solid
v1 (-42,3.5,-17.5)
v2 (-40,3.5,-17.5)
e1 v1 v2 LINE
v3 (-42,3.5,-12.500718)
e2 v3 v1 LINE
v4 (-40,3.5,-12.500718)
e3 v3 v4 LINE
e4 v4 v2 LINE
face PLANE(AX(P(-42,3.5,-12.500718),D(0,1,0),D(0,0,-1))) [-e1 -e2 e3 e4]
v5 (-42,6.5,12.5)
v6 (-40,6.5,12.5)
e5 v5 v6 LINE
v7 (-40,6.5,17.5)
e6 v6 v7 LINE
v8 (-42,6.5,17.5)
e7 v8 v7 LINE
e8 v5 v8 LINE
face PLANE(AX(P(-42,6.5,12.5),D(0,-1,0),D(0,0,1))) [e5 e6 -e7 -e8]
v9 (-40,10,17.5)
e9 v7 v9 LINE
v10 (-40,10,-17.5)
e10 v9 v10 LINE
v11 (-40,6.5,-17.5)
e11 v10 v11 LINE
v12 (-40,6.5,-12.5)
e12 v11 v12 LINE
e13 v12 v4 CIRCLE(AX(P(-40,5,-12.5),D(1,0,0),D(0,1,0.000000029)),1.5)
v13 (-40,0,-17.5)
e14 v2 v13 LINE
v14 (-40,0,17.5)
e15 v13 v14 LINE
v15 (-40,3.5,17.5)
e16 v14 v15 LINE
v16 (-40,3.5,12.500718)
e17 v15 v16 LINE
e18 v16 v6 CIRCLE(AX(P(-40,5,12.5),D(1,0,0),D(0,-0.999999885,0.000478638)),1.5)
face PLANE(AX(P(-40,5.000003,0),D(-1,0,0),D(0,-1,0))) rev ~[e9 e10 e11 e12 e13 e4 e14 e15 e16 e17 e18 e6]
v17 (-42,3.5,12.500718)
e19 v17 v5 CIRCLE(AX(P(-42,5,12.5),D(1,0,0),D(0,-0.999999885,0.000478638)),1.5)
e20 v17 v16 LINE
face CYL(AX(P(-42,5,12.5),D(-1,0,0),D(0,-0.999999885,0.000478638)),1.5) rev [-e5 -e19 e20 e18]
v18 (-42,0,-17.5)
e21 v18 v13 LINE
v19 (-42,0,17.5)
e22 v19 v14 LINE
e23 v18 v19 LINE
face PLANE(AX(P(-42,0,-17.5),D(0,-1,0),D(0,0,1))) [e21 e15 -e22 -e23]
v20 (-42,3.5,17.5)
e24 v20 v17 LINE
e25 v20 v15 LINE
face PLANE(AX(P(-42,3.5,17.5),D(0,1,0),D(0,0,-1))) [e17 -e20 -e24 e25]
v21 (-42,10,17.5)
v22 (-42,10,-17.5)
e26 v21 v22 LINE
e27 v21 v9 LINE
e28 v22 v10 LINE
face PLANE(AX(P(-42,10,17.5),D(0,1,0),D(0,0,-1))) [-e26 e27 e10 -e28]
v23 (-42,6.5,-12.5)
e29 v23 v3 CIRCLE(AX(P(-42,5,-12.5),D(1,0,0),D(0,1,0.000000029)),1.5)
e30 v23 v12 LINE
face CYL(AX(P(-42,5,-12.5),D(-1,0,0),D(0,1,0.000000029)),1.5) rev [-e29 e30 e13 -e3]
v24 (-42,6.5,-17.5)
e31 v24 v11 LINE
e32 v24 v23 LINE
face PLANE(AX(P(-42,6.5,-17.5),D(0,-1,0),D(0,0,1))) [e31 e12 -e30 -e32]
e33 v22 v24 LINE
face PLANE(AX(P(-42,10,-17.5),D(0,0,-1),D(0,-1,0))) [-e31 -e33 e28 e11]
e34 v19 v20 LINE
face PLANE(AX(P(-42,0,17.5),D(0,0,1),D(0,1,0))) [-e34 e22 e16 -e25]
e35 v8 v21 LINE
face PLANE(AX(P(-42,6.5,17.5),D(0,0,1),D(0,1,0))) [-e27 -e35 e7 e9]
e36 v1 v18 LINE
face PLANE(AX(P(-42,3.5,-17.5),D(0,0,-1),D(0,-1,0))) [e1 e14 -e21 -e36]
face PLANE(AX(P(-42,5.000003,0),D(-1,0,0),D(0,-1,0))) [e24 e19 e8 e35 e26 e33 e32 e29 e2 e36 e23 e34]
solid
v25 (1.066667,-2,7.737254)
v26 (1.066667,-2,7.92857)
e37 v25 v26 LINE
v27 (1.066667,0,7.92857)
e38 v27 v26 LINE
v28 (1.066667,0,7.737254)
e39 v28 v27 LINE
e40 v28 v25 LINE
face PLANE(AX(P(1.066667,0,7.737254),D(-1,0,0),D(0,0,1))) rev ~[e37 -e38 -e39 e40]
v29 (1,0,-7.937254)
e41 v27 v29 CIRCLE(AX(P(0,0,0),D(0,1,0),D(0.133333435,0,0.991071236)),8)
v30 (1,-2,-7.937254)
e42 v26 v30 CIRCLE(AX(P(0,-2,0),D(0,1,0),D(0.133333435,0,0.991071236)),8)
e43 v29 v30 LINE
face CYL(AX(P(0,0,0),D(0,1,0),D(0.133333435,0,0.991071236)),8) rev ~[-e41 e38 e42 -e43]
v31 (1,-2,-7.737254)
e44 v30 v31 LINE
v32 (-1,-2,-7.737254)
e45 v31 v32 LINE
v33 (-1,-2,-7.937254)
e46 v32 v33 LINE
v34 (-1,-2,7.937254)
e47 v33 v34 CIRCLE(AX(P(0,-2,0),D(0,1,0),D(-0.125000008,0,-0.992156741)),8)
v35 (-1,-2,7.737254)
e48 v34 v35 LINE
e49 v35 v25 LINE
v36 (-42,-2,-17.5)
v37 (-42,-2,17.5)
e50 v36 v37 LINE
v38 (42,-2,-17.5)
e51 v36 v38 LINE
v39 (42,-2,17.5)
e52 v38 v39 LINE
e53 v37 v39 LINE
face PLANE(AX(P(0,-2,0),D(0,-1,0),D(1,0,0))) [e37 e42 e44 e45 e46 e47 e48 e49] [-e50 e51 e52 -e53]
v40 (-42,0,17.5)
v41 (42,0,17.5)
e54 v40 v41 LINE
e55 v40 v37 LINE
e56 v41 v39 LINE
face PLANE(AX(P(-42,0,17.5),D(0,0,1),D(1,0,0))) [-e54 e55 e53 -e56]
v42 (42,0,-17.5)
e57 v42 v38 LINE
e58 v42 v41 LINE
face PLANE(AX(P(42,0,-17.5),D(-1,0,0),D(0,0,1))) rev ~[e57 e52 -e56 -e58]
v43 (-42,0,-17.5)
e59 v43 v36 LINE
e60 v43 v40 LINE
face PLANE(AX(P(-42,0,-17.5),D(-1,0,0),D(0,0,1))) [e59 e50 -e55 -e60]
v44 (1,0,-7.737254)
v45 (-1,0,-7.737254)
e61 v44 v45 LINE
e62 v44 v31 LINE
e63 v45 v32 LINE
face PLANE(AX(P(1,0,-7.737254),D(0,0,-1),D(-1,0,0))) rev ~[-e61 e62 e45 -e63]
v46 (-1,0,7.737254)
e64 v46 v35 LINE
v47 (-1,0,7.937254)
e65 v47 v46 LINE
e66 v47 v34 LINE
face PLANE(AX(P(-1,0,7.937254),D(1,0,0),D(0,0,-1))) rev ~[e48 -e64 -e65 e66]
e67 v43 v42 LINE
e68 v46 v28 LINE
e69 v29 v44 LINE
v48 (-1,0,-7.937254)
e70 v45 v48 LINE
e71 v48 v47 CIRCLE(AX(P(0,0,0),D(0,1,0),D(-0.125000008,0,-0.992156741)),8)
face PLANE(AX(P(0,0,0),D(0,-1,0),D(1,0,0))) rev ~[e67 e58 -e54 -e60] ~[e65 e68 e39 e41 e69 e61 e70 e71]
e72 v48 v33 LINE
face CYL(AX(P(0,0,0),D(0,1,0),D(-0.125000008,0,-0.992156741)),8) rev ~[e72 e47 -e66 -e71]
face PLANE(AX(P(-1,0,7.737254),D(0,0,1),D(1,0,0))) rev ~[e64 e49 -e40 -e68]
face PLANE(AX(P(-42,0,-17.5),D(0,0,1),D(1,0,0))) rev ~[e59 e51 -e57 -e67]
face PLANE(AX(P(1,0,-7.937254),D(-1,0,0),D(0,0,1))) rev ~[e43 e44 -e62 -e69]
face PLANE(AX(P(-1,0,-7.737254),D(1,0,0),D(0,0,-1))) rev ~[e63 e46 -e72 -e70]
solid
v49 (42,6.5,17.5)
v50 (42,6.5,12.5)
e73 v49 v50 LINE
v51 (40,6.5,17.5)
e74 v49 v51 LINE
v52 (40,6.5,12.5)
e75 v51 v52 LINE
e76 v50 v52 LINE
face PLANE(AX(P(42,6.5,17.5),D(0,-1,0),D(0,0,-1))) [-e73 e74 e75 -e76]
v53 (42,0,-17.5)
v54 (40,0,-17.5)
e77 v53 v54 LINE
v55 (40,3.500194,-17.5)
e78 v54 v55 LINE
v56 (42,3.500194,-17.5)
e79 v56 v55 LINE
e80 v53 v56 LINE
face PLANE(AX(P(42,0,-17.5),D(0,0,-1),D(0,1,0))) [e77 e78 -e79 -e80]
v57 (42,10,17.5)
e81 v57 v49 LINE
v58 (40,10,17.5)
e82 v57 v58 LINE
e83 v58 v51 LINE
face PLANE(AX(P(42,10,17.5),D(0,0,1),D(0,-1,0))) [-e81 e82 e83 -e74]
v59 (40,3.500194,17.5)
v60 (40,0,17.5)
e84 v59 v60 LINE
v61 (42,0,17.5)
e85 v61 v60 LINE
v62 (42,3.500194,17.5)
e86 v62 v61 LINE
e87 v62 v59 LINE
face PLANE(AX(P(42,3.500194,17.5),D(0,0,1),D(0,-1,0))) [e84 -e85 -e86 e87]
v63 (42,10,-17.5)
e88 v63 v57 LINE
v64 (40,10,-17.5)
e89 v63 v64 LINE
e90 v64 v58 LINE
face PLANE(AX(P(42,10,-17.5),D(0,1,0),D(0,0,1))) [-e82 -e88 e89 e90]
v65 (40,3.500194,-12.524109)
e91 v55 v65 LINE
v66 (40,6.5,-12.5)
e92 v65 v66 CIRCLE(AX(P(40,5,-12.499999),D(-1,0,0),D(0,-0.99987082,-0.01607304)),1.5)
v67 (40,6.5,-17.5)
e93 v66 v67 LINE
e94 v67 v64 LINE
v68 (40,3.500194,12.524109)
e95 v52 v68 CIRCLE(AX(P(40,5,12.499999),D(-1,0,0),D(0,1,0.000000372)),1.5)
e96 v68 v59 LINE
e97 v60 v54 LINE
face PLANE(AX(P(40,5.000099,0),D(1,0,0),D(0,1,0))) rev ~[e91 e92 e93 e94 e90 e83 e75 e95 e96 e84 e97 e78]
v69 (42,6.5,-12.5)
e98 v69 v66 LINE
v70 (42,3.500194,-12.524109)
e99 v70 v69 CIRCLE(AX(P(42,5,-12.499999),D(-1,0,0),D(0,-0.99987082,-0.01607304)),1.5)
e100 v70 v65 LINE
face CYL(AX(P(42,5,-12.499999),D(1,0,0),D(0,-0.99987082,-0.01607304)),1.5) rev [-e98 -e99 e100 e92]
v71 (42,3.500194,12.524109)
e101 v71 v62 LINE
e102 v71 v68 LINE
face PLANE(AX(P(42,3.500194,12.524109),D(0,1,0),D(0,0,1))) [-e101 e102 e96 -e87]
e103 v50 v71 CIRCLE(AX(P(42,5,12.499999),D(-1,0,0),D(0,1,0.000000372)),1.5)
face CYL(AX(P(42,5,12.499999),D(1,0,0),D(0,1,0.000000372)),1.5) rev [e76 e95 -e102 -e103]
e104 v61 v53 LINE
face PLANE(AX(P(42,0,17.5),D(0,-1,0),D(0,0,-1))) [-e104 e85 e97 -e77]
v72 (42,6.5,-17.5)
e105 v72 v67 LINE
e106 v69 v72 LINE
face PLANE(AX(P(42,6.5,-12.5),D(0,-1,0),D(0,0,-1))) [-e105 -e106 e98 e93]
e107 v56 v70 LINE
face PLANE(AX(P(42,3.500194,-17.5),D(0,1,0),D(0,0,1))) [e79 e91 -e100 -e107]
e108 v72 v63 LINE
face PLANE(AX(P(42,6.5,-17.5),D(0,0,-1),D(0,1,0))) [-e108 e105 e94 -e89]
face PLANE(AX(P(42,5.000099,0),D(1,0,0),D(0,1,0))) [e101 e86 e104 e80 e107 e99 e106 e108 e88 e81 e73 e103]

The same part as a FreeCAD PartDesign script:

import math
import FreeCAD as App
import Part
import Sketcher

doc = App.newDocument("Part")
body = doc.addObject("PartDesign::Body", "Body")

sketch1 = doc.addObject("Sketcher::SketchObject", "Sketch")
body.addObject(sketch1)
sketch1.AttachmentSupport = (doc.XZ_Plane, [""])
sketch1.MapMode = "FlatFace"
sketch1.addGeometry(Part.LineSegment(App.Vector(-42, 17.5, 0), App.Vector(-42, -17.5, 0)), False)
sketch1.addGeometry(Part.LineSegment(App.Vector(-42, -17.5, 0), App.Vector(42, -17.5, 0)), False)
sketch1.addGeometry(Part.LineSegment(App.Vector(42, -17.5, 0), App.Vector(42, 17.5, 0)), False)
sketch1.addGeometry(Part.LineSegment(App.Vector(42, 17.5, 0), App.Vector(-42, 17.5, 0)), False)
sketch1.addGeometry(Part.LineSegment(App.Vector(-1, -7.74, 0), App.Vector(-1, -7.94, 0)), False)
sketch1.addGeometry(Part.ArcOfCircle(Part.Circle(App.Vector(0, 0, 0), App.Vector(0, 0, 1), 8), math.radians(97), math.radians(263)), False)
sketch1.addGeometry(Part.LineSegment(App.Vector(-1, 7.94, 0), App.Vector(-1, 7.74, 0)), False)
sketch1.addGeometry(Part.LineSegment(App.Vector(-1, 7.74, 0), App.Vector(1.07, 7.74, 0)), False)
sketch1.addGeometry(Part.LineSegment(App.Vector(1.07, 7.74, 0), App.Vector(1.07, 7.93, 0)), False)
sketch1.addGeometry(Part.ArcOfCircle(Part.Circle(App.Vector(0, 0, 0), App.Vector(0, 0, 1), 8), math.radians(-83), math.radians(82)), False)
sketch1.addGeometry(Part.LineSegment(App.Vector(1, -7.94, 0), App.Vector(1, -7.74, 0)), False)
sketch1.addGeometry(Part.LineSegment(App.Vector(1, -7.74, 0), App.Vector(-1, -7.74, 0)), False)
sketch1.addConstraint(Sketcher.Constraint("Coincident", 0, 2, 1, 1))
sketch1.addConstraint(Sketcher.Constraint("Coincident", 1, 2, 2, 1))
sketch1.addConstraint(Sketcher.Constraint("Coincident", 2, 2, 3, 1))
sketch1.addConstraint(Sketcher.Constraint("Coincident", 3, 2, 0, 1))
sketch1.addConstraint(Sketcher.Constraint("Coincident", 4, 2, 5, 2))
sketch1.addConstraint(Sketcher.Constraint("Coincident", 5, 1, 6, 1))
sketch1.addConstraint(Sketcher.Constraint("Coincident", 6, 2, 7, 1))
sketch1.addConstraint(Sketcher.Constraint("Coincident", 7, 2, 8, 1))
sketch1.addConstraint(Sketcher.Constraint("Coincident", 8, 2, 9, 2))
sketch1.addConstraint(Sketcher.Constraint("Coincident", 9, 1, 10, 1))
sketch1.addConstraint(Sketcher.Constraint("Coincident", 10, 2, 11, 1))
sketch1.addConstraint(Sketcher.Constraint("Coincident", 11, 2, 4, 1))
sketch1.addConstraint(Sketcher.Constraint("Vertical", 0))
sketch1.addConstraint(Sketcher.Constraint("Horizontal", 1))
sketch1.addConstraint(Sketcher.Constraint("Vertical", 2))
sketch1.addConstraint(Sketcher.Constraint("Horizontal", 3))
sketch1.addConstraint(Sketcher.Constraint("Vertical", 4))
sketch1.addConstraint(Sketcher.Constraint("Vertical", 6))
sketch1.addConstraint(Sketcher.Constraint("Horizontal", 7))
sketch1.addConstraint(Sketcher.Constraint("Vertical", 8))
sketch1.addConstraint(Sketcher.Constraint("Vertical", 10))
sketch1.addConstraint(Sketcher.Constraint("Horizontal", 11))
sketch1.addConstraint(Sketcher.Constraint("Coincident", 5, 3, -1, 1))
sketch1.addConstraint(Sketcher.Constraint("Coincident", 9, 3, -1, 1))
sketch1.addConstraint(Sketcher.Constraint("Equal", 5, 9))
sketch1.addConstraint(Sketcher.Constraint("Symmetric", 0, 2, 2, 2, -1, 1))
sketch1.addConstraint(Sketcher.Constraint("Symmetric", 6, 2, 10, 2, -1, 1))
sketch1.addConstraint(Sketcher.Constraint("Horizontal", 4, 2, 9, 1))
sketch1.addConstraint(Sketcher.Constraint("Radius", 5, 8.0))
sketch1.addConstraint(Sketcher.Constraint("DistanceX", 1, 1, 1, 2, 84.0))
sketch1.addConstraint(Sketcher.Constraint("DistanceX", 11, 2, 11, 1, 2.0))
sketch1.addConstraint(Sketcher.Constraint("DistanceY", 0, 2, 0, 1, 35.0))
sketch1.addConstraint(Sketcher.Constraint("DistanceY", 4, 2, 4, 1, 0.2))
sketch1.addConstraint(Sketcher.Constraint("DistanceX", 7, 1, 7, 2, 2.066667))
pad1 = doc.addObject("PartDesign::Pad", "Pad")
body.addObject(pad1)
pad1.Profile = sketch1
pad1.Length = 2
body2 = doc.addObject("PartDesign::Body", "Body001")

sketch2 = doc.addObject("Sketcher::SketchObject", "Sketch001")
body2.addObject(sketch2)
sketch2.AttachmentSupport = (doc.getObject("YZ_Plane001"), [""])
sketch2.MapMode = "FlatFace"
sketch2.AttachmentOffset = App.Placement(App.Vector(0, 0, 42), App.Rotation())
sketch2.addGeometry(Part.LineSegment(App.Vector(3.5, 17.5, 0), App.Vector(0, 17.5, 0)), False)
sketch2.addGeometry(Part.LineSegment(App.Vector(0, 17.5, 0), App.Vector(0, -17.5, 0)), False)
sketch2.addGeometry(Part.LineSegment(App.Vector(0, -17.5, 0), App.Vector(3.5, -17.5, 0)), False)
sketch2.addGeometry(Part.LineSegment(App.Vector(3.5, -17.5, 0), App.Vector(3.5, -12.5, 0)), False)
sketch2.addGeometry(Part.ArcOfCircle(Part.Circle(App.Vector(5, -12.5, 0), App.Vector(0, 0, 1), 1.5), math.radians(0), math.radians(181)), False)
sketch2.addGeometry(Part.LineSegment(App.Vector(6.5, -12.5, 0), App.Vector(6.5, -17.5, 0)), False)
sketch2.addGeometry(Part.LineSegment(App.Vector(6.5, -17.5, 0), App.Vector(10, -17.5, 0)), False)
sketch2.addGeometry(Part.LineSegment(App.Vector(10, -17.5, 0), App.Vector(10, 17.5, 0)), False)
sketch2.addGeometry(Part.LineSegment(App.Vector(10, 17.5, 0), App.Vector(6.5, 17.5, 0)), False)
sketch2.addGeometry(Part.LineSegment(App.Vector(6.5, 17.5, 0), App.Vector(6.5, 12.5, 0)), False)
sketch2.addGeometry(Part.ArcOfCircle(Part.Circle(App.Vector(5, 12.5, 0), App.Vector(0, 0, 1), 1.5), math.radians(179), math.radians(360)), False)
sketch2.addGeometry(Part.LineSegment(App.Vector(3.5, 12.5, 0), App.Vector(3.5, 17.5, 0)), False)
sketch2.addConstraint(Sketcher.Constraint("Coincident", 0, 2, 1, 1))
sketch2.addConstraint(Sketcher.Constraint("Coincident", 1, 2, 2, 1))
sketch2.addConstraint(Sketcher.Constraint("Coincident", 2, 2, 3, 1))
sketch2.addConstraint(Sketcher.Constraint("Coincident", 3, 2, 4, 2))
sketch2.addConstraint(Sketcher.Constraint("Tangent", 4, 1, 5, 1))
sketch2.addConstraint(Sketcher.Constraint("Coincident", 5, 2, 6, 1))
sketch2.addConstraint(Sketcher.Constraint("Coincident", 6, 2, 7, 1))
sketch2.addConstraint(Sketcher.Constraint("Coincident", 7, 2, 8, 1))
sketch2.addConstraint(Sketcher.Constraint("Coincident", 8, 2, 9, 1))
sketch2.addConstraint(Sketcher.Constraint("Tangent", 9, 2, 10, 2))
sketch2.addConstraint(Sketcher.Constraint("Coincident", 10, 1, 11, 1))
sketch2.addConstraint(Sketcher.Constraint("Coincident", 11, 2, 0, 1))
sketch2.addConstraint(Sketcher.Constraint("Horizontal", 0))
sketch2.addConstraint(Sketcher.Constraint("Vertical", 1))
sketch2.addConstraint(Sketcher.Constraint("Horizontal", 2))
sketch2.addConstraint(Sketcher.Constraint("Vertical", 3))
sketch2.addConstraint(Sketcher.Constraint("Vertical", 5))
sketch2.addConstraint(Sketcher.Constraint("Horizontal", 6))
sketch2.addConstraint(Sketcher.Constraint("Vertical", 7))
sketch2.addConstraint(Sketcher.Constraint("Horizontal", 8))
sketch2.addConstraint(Sketcher.Constraint("Vertical", 9))
sketch2.addConstraint(Sketcher.Constraint("Vertical", 11))
sketch2.addConstraint(Sketcher.Constraint("Equal", 4, 10))
sketch2.addConstraint(Sketcher.Constraint("Symmetric", 0, 2, 1, 2, -1, 1))
sketch2.addConstraint(Sketcher.Constraint("Symmetric", 4, 3, 10, 3, -1))
sketch2.addConstraint(Sketcher.Constraint("Horizontal", 2, 2, 5, 2))
sketch2.addConstraint(Sketcher.Constraint("Horizontal", 0, 2, 7, 2))
sketch2.addConstraint(Sketcher.Constraint("Vertical", 3, 2, 10, 1))
sketch2.addConstraint(Sketcher.Constraint("Radius", 4, 1.5))
sketch2.addConstraint(Sketcher.Constraint("DistanceY", 1, 2, 1, 1, 35.0))
sketch2.addConstraint(Sketcher.Constraint("DistanceY", 5, 2, 5, 1, 5.0))
sketch2.addConstraint(Sketcher.Constraint("DistanceX", 6, 1, 6, 2, 3.5))
sketch2.addConstraint(Sketcher.Constraint("DistanceX", -1, 1, 4, 3, 5.0))
sketch2.addConstraint(Sketcher.Constraint("DistanceY", 3, 1, 3, 2, 4.975891))
pad2 = doc.addObject("PartDesign::Pad", "Pad001")
body2.addObject(pad2)
pad2.Profile = sketch2
pad2.Length = 2
pad2.Reversed = True
body3 = doc.addObject("PartDesign::Body", "Body002")

sketch3 = doc.addObject("Sketcher::SketchObject", "Sketch002")
body3.addObject(sketch3)
sketch3.AttachmentSupport = (doc.getObject("YZ_Plane002"), [""])
sketch3.MapMode = "FlatFace"
sketch3.AttachmentOffset = App.Placement(App.Vector(0, 0, -42), App.Rotation())
sketch3.addGeometry(Part.LineSegment(App.Vector(6.5, 17.5, 0), App.Vector(10, 17.5, 0)), False)
sketch3.addGeometry(Part.LineSegment(App.Vector(10, 17.5, 0), App.Vector(10, -17.5, 0)), False)
sketch3.addGeometry(Part.LineSegment(App.Vector(10, -17.5, 0), App.Vector(6.5, -17.5, 0)), False)
sketch3.addGeometry(Part.LineSegment(App.Vector(6.5, -17.5, 0), App.Vector(6.5, -12.5, 0)), False)
sketch3.addGeometry(Part.ArcOfCircle(Part.Circle(App.Vector(5, -12.5, 0), App.Vector(0, 0, 1), 1.5), math.radians(0), math.radians(180)), False)
sketch3.addGeometry(Part.LineSegment(App.Vector(3.5, -12.5, 0), App.Vector(3.5, -17.5, 0)), False)
sketch3.addGeometry(Part.LineSegment(App.Vector(3.5, -17.5, 0), App.Vector(0, -17.5, 0)), False)
sketch3.addGeometry(Part.LineSegment(App.Vector(0, -17.5, 0), App.Vector(0, 17.5, 0)), False)
sketch3.addGeometry(Part.LineSegment(App.Vector(0, 17.5, 0), App.Vector(3.5, 17.5, 0)), False)
sketch3.addGeometry(Part.LineSegment(App.Vector(3.5, 17.5, 0), App.Vector(3.5, 12.5, 0)), False)
sketch3.addGeometry(Part.ArcOfCircle(Part.Circle(App.Vector(5, 12.5, 0), App.Vector(0, 0, 1), 1.5), math.radians(180), math.radians(360)), False)
sketch3.addGeometry(Part.LineSegment(App.Vector(6.5, 12.5, 0), App.Vector(6.5, 17.5, 0)), False)
sketch3.addConstraint(Sketcher.Constraint("Coincident", 0, 2, 1, 1))
sketch3.addConstraint(Sketcher.Constraint("Coincident", 1, 2, 2, 1))
sketch3.addConstraint(Sketcher.Constraint("Coincident", 2, 2, 3, 1))
sketch3.addConstraint(Sketcher.Constraint("Tangent", 3, 2, 4, 1))
sketch3.addConstraint(Sketcher.Constraint("Coincident", 4, 2, 5, 1))
sketch3.addConstraint(Sketcher.Constraint("Coincident", 5, 2, 6, 1))
sketch3.addConstraint(Sketcher.Constraint("Coincident", 6, 2, 7, 1))
sketch3.addConstraint(Sketcher.Constraint("Coincident", 7, 2, 8, 1))
sketch3.addConstraint(Sketcher.Constraint("Coincident", 8, 2, 9, 1))
sketch3.addConstraint(Sketcher.Constraint("Coincident", 9, 2, 10, 1))
sketch3.addConstraint(Sketcher.Constraint("Tangent", 10, 2, 11, 1))
sketch3.addConstraint(Sketcher.Constraint("Coincident", 11, 2, 0, 1))
sketch3.addConstraint(Sketcher.Constraint("Horizontal", 0))
sketch3.addConstraint(Sketcher.Constraint("Vertical", 1))
sketch3.addConstraint(Sketcher.Constraint("Horizontal", 2))
sketch3.addConstraint(Sketcher.Constraint("Vertical", 3))
sketch3.addConstraint(Sketcher.Constraint("Vertical", 5))
sketch3.addConstraint(Sketcher.Constraint("Horizontal", 6))
sketch3.addConstraint(Sketcher.Constraint("Vertical", 7))
sketch3.addConstraint(Sketcher.Constraint("Horizontal", 8))
sketch3.addConstraint(Sketcher.Constraint("Vertical", 9))
sketch3.addConstraint(Sketcher.Constraint("Vertical", 11))
sketch3.addConstraint(Sketcher.Constraint("Equal", 4, 10))
sketch3.addConstraint(Sketcher.Constraint("Symmetric", 6, 2, 7, 2, -1, 1))
sketch3.addConstraint(Sketcher.Constraint("Symmetric", 4, 3, 10, 3, -1))
sketch3.addConstraint(Sketcher.Constraint("Horizontal", 2, 2, 5, 2))
sketch3.addConstraint(Sketcher.Constraint("Horizontal", 0, 2, 7, 2))
sketch3.addConstraint(Sketcher.Constraint("Equal", 2, 6))
sketch3.addConstraint(Sketcher.Constraint("Equal", 5, 9))
sketch3.addConstraint(Sketcher.Constraint("Radius", 4, 1.5))
sketch3.addConstraint(Sketcher.Constraint("DistanceY", 1, 2, 1, 1, 35.0))
sketch3.addConstraint(Sketcher.Constraint("DistanceY", 3, 1, 3, 2, 5.0))
sketch3.addConstraint(Sketcher.Constraint("DistanceX", 0, 1, 0, 2, 3.5))
sketch3.addConstraint(Sketcher.Constraint("DistanceY", 5, 2, 5, 1, 4.999282))
pad3 = doc.addObject("PartDesign::Pad", "Pad002")
body3.addObject(pad3)
pad3.Profile = sketch3
pad3.Length = 2

doc.recompute()
